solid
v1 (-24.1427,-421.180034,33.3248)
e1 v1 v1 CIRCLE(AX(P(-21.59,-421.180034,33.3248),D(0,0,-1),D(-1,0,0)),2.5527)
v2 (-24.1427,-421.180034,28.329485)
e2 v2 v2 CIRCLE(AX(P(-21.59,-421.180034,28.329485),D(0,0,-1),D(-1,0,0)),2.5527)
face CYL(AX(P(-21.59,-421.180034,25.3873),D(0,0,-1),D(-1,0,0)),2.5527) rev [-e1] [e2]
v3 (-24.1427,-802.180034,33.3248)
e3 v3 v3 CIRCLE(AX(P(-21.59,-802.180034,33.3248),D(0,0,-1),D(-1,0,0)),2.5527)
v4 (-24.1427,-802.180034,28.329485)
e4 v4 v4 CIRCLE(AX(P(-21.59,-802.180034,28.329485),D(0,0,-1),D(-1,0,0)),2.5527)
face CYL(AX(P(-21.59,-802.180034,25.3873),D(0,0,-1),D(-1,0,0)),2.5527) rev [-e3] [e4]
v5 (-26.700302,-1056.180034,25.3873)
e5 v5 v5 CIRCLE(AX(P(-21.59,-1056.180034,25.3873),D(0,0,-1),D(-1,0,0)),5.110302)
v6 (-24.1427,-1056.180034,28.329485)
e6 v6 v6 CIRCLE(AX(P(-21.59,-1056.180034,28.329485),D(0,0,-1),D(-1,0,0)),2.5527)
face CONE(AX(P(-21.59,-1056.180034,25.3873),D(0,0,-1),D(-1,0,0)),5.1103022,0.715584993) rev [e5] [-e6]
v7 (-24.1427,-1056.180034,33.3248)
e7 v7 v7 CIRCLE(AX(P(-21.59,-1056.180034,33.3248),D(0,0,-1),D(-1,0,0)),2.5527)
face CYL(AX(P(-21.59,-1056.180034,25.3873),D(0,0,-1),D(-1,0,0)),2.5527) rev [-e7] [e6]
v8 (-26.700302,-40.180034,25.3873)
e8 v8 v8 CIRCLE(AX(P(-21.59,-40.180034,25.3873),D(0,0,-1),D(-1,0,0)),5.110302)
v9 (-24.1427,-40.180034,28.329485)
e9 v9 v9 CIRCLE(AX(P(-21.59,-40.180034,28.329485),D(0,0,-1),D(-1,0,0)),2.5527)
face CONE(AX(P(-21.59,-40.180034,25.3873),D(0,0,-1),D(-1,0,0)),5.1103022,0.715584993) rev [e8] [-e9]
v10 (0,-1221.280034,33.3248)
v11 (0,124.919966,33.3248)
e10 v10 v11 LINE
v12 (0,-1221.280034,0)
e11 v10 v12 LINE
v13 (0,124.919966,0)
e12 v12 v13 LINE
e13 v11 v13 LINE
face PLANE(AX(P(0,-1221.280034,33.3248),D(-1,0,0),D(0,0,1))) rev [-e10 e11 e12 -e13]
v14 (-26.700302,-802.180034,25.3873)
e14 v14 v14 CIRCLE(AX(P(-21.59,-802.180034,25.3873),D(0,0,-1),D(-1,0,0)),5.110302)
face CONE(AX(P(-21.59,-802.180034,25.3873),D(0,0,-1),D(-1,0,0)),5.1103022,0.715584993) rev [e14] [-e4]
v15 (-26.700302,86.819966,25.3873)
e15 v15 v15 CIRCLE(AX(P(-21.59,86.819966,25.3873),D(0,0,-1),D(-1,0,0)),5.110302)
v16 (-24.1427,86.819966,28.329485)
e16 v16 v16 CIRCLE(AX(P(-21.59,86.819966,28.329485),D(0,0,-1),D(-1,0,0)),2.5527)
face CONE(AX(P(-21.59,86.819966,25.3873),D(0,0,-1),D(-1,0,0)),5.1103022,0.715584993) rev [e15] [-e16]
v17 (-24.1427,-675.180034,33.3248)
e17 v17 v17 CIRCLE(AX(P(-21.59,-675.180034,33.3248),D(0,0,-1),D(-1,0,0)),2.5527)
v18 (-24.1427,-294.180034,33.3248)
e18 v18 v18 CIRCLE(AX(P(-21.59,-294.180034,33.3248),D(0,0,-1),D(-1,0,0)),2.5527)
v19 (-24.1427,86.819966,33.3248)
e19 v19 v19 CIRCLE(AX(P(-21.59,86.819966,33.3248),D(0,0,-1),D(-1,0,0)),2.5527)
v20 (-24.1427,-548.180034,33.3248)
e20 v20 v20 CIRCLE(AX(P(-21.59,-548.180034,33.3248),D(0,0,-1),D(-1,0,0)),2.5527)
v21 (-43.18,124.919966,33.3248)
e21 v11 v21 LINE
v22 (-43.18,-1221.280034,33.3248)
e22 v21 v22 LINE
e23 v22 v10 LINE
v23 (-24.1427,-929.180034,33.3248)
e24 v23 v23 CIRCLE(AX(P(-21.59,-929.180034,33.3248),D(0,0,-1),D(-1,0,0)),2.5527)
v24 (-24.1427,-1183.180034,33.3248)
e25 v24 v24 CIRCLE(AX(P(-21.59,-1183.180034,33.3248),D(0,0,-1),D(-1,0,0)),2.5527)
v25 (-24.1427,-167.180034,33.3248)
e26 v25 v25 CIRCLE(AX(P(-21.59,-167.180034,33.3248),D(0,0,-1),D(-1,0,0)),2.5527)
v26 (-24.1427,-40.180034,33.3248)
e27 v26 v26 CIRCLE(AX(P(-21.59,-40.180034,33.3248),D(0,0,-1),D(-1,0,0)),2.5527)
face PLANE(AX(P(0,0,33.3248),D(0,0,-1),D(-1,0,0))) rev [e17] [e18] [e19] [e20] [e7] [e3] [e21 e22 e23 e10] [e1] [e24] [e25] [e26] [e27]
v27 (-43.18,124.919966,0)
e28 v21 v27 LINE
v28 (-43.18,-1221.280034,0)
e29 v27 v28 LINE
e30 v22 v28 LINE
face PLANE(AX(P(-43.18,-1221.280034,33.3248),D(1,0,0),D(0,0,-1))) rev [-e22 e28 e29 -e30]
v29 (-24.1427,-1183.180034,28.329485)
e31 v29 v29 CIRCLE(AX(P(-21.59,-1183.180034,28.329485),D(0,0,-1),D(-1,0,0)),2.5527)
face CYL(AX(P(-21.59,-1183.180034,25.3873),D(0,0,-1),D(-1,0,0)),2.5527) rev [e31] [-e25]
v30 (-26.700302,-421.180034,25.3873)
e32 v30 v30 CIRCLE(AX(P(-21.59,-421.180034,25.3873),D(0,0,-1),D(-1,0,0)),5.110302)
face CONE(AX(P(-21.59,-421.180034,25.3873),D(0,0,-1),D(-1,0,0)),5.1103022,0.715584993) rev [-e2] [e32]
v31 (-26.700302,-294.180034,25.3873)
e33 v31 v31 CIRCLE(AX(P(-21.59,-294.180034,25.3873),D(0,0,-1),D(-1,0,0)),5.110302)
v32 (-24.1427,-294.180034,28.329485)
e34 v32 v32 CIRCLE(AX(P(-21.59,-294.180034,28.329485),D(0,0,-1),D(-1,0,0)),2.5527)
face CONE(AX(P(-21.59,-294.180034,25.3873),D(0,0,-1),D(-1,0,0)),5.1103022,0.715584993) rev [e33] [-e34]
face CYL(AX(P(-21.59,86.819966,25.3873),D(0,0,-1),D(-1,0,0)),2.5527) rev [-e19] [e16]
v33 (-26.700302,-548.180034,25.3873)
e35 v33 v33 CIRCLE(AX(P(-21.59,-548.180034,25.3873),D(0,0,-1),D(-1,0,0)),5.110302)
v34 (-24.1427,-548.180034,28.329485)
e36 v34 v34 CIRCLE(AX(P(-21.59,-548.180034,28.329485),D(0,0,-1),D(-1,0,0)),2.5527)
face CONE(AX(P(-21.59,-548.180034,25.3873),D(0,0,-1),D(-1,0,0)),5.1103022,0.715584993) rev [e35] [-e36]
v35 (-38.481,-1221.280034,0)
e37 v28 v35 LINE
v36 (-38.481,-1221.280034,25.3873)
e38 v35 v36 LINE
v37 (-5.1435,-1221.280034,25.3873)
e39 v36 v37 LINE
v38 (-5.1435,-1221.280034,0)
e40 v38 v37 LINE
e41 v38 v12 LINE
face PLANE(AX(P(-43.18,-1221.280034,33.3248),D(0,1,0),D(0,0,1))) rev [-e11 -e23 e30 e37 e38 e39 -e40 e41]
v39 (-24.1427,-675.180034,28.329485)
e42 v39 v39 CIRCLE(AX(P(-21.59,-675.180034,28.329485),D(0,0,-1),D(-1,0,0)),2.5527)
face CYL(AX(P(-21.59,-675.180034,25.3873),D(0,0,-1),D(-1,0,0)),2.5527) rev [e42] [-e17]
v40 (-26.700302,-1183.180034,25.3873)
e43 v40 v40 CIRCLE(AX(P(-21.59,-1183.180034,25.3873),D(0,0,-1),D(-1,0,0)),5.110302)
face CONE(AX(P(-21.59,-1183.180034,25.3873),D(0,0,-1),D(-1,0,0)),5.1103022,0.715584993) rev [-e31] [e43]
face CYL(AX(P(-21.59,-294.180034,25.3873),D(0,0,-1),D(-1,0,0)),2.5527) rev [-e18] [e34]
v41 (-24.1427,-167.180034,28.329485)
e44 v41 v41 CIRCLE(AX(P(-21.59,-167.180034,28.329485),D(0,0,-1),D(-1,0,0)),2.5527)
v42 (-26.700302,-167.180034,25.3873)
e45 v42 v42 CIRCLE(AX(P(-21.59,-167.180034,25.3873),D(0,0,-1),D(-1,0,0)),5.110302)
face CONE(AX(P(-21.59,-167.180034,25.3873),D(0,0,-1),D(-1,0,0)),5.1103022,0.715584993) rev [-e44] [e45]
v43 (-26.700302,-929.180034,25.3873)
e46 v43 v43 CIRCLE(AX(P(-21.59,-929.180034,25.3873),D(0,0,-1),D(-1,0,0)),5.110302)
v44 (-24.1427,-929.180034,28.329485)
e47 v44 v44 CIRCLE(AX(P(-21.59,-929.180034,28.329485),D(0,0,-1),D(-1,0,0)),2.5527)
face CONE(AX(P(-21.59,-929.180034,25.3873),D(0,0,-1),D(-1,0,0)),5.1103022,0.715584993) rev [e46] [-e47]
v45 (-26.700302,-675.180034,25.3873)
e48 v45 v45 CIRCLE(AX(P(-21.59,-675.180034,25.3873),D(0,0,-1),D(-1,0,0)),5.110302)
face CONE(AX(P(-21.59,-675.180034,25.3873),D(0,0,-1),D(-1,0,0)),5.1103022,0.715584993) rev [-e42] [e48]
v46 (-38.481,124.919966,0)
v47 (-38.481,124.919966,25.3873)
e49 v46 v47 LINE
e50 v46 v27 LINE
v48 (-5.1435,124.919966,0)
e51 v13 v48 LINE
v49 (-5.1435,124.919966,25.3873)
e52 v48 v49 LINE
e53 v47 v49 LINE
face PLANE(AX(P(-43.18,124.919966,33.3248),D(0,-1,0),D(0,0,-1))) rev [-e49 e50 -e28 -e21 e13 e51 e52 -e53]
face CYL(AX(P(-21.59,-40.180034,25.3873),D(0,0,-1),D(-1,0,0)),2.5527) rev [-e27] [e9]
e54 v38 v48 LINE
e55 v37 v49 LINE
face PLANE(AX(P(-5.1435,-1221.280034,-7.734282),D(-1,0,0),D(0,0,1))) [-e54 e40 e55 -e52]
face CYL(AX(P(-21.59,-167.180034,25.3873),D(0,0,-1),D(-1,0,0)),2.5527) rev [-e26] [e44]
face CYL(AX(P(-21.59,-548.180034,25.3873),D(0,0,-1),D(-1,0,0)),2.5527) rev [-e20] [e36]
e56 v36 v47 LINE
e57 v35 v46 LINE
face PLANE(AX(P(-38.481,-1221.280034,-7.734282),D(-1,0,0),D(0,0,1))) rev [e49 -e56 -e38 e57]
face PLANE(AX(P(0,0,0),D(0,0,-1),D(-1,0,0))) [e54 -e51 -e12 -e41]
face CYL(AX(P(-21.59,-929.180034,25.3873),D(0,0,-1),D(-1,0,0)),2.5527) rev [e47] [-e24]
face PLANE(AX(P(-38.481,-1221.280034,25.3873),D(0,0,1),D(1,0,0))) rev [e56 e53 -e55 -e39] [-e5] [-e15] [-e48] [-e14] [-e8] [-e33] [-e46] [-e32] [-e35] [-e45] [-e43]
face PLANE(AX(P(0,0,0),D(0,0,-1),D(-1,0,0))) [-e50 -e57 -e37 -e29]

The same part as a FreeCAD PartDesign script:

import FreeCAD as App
import Part
import Sketcher
from FreeCAD import Vector
Q = App.Units.Quantity

doc = App.newDocument("Part")
body = doc.addObject("PartDesign::Body", "Body")

sketch1 = body.newObject("Sketcher::SketchObject", "Sketch")
sketch1.AttachmentSupport = (doc.getObject("XY_Plane"), [""])
sketch1.MapMode = "FlatFace"
sketch1.addGeometry([
    Part.LineSegment(Vector(-43.18, 124.919966, 0), Vector(-43.18, -1221.280034, 0)),
    Part.LineSegment(Vector(-43.18, -1221.280034, 0), Vector(0, -1221.280034, 0)),
    Part.LineSegment(Vector(0, -1221.280034, 0), Vector(0, 124.919966, 0)),
    Part.LineSegment(Vector(0, 124.919966, 0), Vector(-43.18, 124.919966, 0)),
], False)
sketch1.addConstraint([
    Sketcher.Constraint("Coincident", 0, 2, 1, 1),
    Sketcher.Constraint("Coincident", 1, 2, 2, 1),
    Sketcher.Constraint("Coincident", 2, 2, 3, 1),
    Sketcher.Constraint("Coincident", 3, 2, 0, 1),
    Sketcher.Constraint("Vertical", 0),
    Sketcher.Constraint("Horizontal", 1),
    Sketcher.Constraint("Vertical", 2),
    Sketcher.Constraint("Horizontal", 3),
    Sketcher.Constraint("PointOnObject", 1, 2, -2),
    Sketcher.Constraint("DistanceY", 0, 2, 0, 1, Q("53 in")),
    Sketcher.Constraint("DistanceX", 1, 1, 1, 2, Q("1.7 in")),
    Sketcher.Constraint("DistanceY", 0, 2, -1, 1, Q("1221.280034 mm")),
])
pad1 = body.newObject("PartDesign::Pad", "Pad")
pad1.Profile = sketch1
pad1.Length = Q("1.312 in")

sketch2 = body.newObject("Sketcher::SketchObject", "Sketch001")
sketch2.AttachmentSupport = (doc.getObject("XZ_Plane"), [""])
sketch2.MapMode = "FlatFace"
sketch2.AttachmentOffset = App.Placement(Vector(0, 0, -124.919966), App.Rotation())
sketch2.addGeometry([
    Part.LineSegment(Vector(-38.481, -7.734282, 0), Vector(-38.481, 25.3873, 0)),
    Part.LineSegment(Vector(-38.481, 25.3873, 0), Vector(-5.1435, 25.3873, 0)),
    Part.LineSegment(Vector(-5.1435, 25.3873, 0), Vector(-5.1435, -7.734282, 0)),
    Part.LineSegment(Vector(-5.1435, -7.734282, 0), Vector(-38.481, -7.734282, 0)),
], False)
sketch2.addConstraint([
    Sketcher.Constraint("Coincident", 0, 2, 1, 1),
    Sketcher.Constraint("Coincident", 1, 2, 2, 1),
    Sketcher.Constraint("Coincident", 2, 2, 3, 1),
    Sketcher.Constraint("Coincident", 3, 2, 0, 1),
    Sketcher.Constraint("Vertical", 0),
    Sketcher.Constraint("Horizontal", 1),
    Sketcher.Constraint("Vertical", 2),
    Sketcher.Constraint("Horizontal", 3),
    Sketcher.Constraint("DistanceX", 1, 1, 1, 2, Q("1.3125 in")),
    Sketcher.Constraint("DistanceX", 0, 2, -1, 1, Q("1.515 in")),
    Sketcher.Constraint("DistanceY", -1, 1, 0, 2, Q("0.9995 in")),
    Sketcher.Constraint("DistanceY", 0, 1, 0, 2, Q("33.121582 mm")),
])
pocket1 = body.newObject("PartDesign::Pocket", "Pocket")
pocket1.Profile = sketch2
pocket1.Type = "ThroughAll"
pocket1.Reversed = True

sketch3 = body.newObject("Sketcher::SketchObject", "Sketch002")
sketch3.AttachmentSupport = (doc.getObject("XY_Plane"), [""])
sketch3.MapMode = "FlatFace"
sketch3.AttachmentOffset = App.Placement(Vector(0, 0, 0.9995 * 25.4), App.Rotation())
sketch3.addGeometry([
    Part.Circle(Vector(-21.59, -1183.180034, 0), Vector(0, 0, 1), 2.5527),
    Part.Circle(Vector(-21.59, -1056.180034, 0), Vector(0, 0, 1), 2.5527),
    Part.Circle(Vector(-21.59, -929.180034, 0), Vector(0, 0, 1), 2.5527),
    Part.Circle(Vector(-21.59, -802.180034, 0), Vector(0, 0, 1), 2.5527),
    Part.Circle(Vector(-21.59, -675.180034, 0), Vector(0, 0, 1), 2.5527),
    Part.Circle(Vector(-21.59, -548.180034, 0), Vector(0, 0, 1), 2.5527),
    Part.Circle(Vector(-21.59, -421.180034, 0), Vector(0, 0, 1), 2.5527),
    Part.Circle(Vector(-21.59, -294.180034, 0), Vector(0, 0, 1), 2.5527),
    Part.Circle(Vector(-21.59, -167.180034, 0), Vector(0, 0, 1), 2.5527),
    Part.Circle(Vector(-21.59, -40.180034, 0), Vector(0, 0, 1), 2.5527),
    Part.Circle(Vector(-21.59, 86.819966, 0), Vector(0, 0, 1), 2.5527),
], False)
sketch3.addConstraint([
    Sketcher.Constraint("Equal", 0, 1),
    Sketcher.Constraint("Equal", 1, 2),
    Sketcher.Constraint("Equal", 2, 3),
    Sketcher.Constraint("Equal", 3, 4),
    Sketcher.Constraint("Equal", 4, 5),
    Sketcher.Constraint("Equal", 5, 6),
    Sketcher.Constraint("Equal", 6, 7),
    Sketcher.Constraint("Equal", 7, 8),
    Sketcher.Constraint("Equal", 8, 9),
    Sketcher.Constraint("Equal", 9, 10),
    Sketcher.Constraint("Vertical", 0, 3, 1, 3),
    Sketcher.Constraint("Vertical", 1, 3, 2, 3),
    Sketcher.Constraint("Vertical", 2, 3, 3, 3),
    Sketcher.Constraint("Vertical", 3, 3, 4, 3),
    Sketcher.Constraint("Vertical", 4, 3, 5, 3),
    Sketcher.Constraint("Vertical", 5, 3, 6, 3),
    Sketcher.Constraint("Vertical", 6, 3, 7, 3),
    Sketcher.Constraint("Vertical", 7, 3, 8, 3),
    Sketcher.Constraint("Vertical", 8, 3, 9, 3),
    Sketcher.Constraint("Vertical", 9, 3, 10, 3),
    Sketcher.Constraint("Diameter", 0, Q("0.201 in")),
    Sketcher.Constraint("DistanceY", 0, 3, 1, 3, Q("5 in")),
    Sketcher.Constraint("DistanceY", 1, 3, 2, 3, Q("5 in")),
    Sketcher.Constraint("DistanceY", 2, 3, 3, 3, Q("5 in")),
    Sketcher.Constraint("DistanceY", 3, 3, 4, 3, Q("5 in")),
    Sketcher.Constraint("DistanceY", 4, 3, 5, 3, Q("5 in")),
    Sketcher.Constraint("DistanceY", 5, 3, 6, 3, Q("5 in")),
    Sketcher.Constraint("DistanceY", 6, 3, 7, 3, Q("5 in")),
    Sketcher.Constraint("DistanceY", 7, 3, 8, 3, Q("5 in")),
    Sketcher.Constraint("DistanceY", 8, 3, 9, 3, Q("5 in")),
    Sketcher.Constraint("DistanceY", 9, 3, 10, 3, Q("5 in")),
    Sketcher.Constraint("DistanceX", 0, 3, -1, 1, Q("0.85 in")),
    Sketcher.Constraint("DistanceY", 0, 3, -1, 1, Q("1183.180034 mm")),
])
doc.recompute()
hole = body.newObject("PartDesign::Hole", "Hole")
hole.Profile = sketch3
hole.ThreadType = "None"
hole.Diameter = Q("0.201 in")
hole.DepthType = "Dimension"
hole.Depth = Q("3 in")
hole.DrillPoint = "Angled"
hole.DrillPointAngle = 118
hole.HoleCutType = "Countersink"
hole.HoleCutDiameter = 10.220604
hole.HoleCutCountersinkAngle = 82
hole.Reversed = True

doc.recompute()
